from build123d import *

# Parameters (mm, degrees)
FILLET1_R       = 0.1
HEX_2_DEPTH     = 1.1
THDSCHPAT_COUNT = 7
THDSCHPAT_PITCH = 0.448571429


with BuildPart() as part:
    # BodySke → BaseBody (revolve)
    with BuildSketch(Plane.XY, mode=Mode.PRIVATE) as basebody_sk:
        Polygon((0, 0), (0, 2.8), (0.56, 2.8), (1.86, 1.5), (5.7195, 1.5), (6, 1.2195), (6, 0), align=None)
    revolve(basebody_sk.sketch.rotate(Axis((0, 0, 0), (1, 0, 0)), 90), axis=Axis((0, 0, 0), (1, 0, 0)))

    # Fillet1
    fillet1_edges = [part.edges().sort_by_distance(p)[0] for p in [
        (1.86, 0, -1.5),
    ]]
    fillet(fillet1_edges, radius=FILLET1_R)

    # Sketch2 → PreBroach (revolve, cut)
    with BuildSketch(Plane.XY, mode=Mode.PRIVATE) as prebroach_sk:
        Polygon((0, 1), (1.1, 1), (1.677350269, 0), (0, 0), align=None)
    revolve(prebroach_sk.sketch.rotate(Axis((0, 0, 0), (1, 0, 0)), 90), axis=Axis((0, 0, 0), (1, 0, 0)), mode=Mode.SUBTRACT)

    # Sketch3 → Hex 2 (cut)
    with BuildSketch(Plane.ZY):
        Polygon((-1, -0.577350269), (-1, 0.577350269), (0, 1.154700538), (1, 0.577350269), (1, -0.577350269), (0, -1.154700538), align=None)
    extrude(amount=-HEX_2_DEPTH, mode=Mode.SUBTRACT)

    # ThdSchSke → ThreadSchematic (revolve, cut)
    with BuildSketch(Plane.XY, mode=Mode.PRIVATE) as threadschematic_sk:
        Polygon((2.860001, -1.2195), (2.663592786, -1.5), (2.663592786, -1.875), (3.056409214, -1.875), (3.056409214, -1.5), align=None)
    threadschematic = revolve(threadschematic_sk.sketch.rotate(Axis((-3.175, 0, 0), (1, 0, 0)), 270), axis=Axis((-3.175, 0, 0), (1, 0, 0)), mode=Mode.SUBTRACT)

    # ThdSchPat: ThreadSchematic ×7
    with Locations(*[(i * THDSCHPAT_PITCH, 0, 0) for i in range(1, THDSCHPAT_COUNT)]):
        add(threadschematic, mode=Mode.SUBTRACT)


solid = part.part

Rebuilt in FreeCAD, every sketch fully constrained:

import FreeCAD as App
import Part
import Sketcher
from FreeCAD import Vector
Q = App.Units.Quantity


def edges_at(feature, points):
    """Names of the edges that pass closest to the given points."""
    edges = feature.Shape.Edges
    near = lambda p: min(range(len(edges)), key=lambda i: edges[i].distToShape(Part.Vertex(*p))[0])
    return sorted({f"Edge{near(p) + 1}" for p in points})

doc = App.newDocument("Part")
body = doc.addObject("PartDesign::Body", "Body")

# Sketch on XY plane
sketch1 = body.newObject("Sketcher::SketchObject", "Sketch")
sketch1.AttachmentSupport = (doc.getObject("XY_Plane"), [""])
sketch1.MapMode = "FlatFace"
sketch1.addGeometry(Part.LineSegment(Vector(0, 2.8, 0), Vector(0, 0, 0)), False)
sketch1.addGeometry(Part.LineSegment(Vector(0, 0, 0), Vector(6, 0, 0)), False)
sketch1.addGeometry(Part.LineSegment(Vector(6, 0, 0), Vector(6, 1.22, 0)), False)
sketch1.addGeometry(Part.LineSegment(Vector(6, 1.22, 0), Vector(5.72, 1.5, 0)), False)
sketch1.addGeometry(Part.LineSegment(Vector(5.72, 1.5, 0), Vector(1.86, 1.5, 0)), False)
sketch1.addGeometry(Part.LineSegment(Vector(1.86, 1.5, 0), Vector(0.56, 2.8, 0)), False)
sketch1.addGeometry(Part.LineSegment(Vector(0.56, 2.8, 0), Vector(0, 2.8, 0)), False)
sketch1.addConstraint(Sketcher.Constraint("Coincident", 0, 2, 1, 1))
sketch1.addConstraint(Sketcher.Constraint("Coincident", 1, 2, 2, 1))
sketch1.addConstraint(Sketcher.Constraint("Coincident", 2, 2, 3, 1))
sketch1.addConstraint(Sketcher.Constraint("Coincident", 3, 2, 4, 1))
sketch1.addConstraint(Sketcher.Constraint("Coincident", 4, 2, 5, 1))
sketch1.addConstraint(Sketcher.Constraint("Coincident", 5, 2, 6, 1))
sketch1.addConstraint(Sketcher.Constraint("Coincident", 6, 2, 0, 1))
sketch1.addConstraint(Sketcher.Constraint("Vertical", 0))
sketch1.addConstraint(Sketcher.Constraint("Horizontal", 1))
sketch1.addConstraint(Sketcher.Constraint("Vertical", 2))
sketch1.addConstraint(Sketcher.Constraint("Horizontal", 4))
sketch1.addConstraint(Sketcher.Constraint("Horizontal", 6))
sketch1.addConstraint(Sketcher.Constraint("Coincident", 0, 2, -1, 1))
sketch1.addConstraint(Sketcher.Constraint("Parallel", 3, 5))
sketch1.addConstraint(Sketcher.Constraint("DistanceX", 1, 1, 1, 2, 6.0))
sketch1.addConstraint(Sketcher.Constraint("Angle", 3, Q("135 deg")))
sketch1.addConstraint(Sketcher.Constraint("DistanceY", 0, 2, 0, 1, 2.8))
sketch1.addConstraint(Sketcher.Constraint("DistanceX", 6, 2, 6, 1, 0.56))
sketch1.addConstraint(Sketcher.Constraint("DistanceY", -1, 1, 3, 2, 1.5))
sketch1.addConstraint(Sketcher.Constraint("DistanceX", 4, 2, 4, 1, 3.8595))
revolution = body.newObject("PartDesign::Revolution", "Revolution")
revolution.Profile = sketch1
revolution.ReferenceAxis = (sketch1, ["H_Axis"])
revolution.Angle = 360
doc.recompute()

fillet = body.newObject("PartDesign::Fillet", "Fillet")
fillet.Base = (revolution, edges_at(revolution, [(1.86, 0, -1.5)]))
fillet.Radius = 0.1

# Sketch on XY plane
sketch2 = body.newObject("Sketcher::SketchObject", "Sketch001")
sketch2.AttachmentSupport = (doc.getObject("XY_Plane"), [""])
sketch2.MapMode = "FlatFace"
sketch2.addGeometry(Part.LineSegment(Vector(1.1, 1, 0), Vector(0, 1, 0)), False)
sketch2.addGeometry(Part.LineSegment(Vector(0, 1, 0), Vector(0, 0, 0)), False)
sketch2.addGeometry(Part.LineSegment(Vector(0, 0, 0), Vector(1.7, 0, 0)), False)
sketch2.addGeometry(Part.LineSegment(Vector(1.7, 0, 0), Vector(1.1, 1, 0)), False)
sketch2.addConstraint(Sketcher.Constraint("Coincident", 0, 2, 1, 1))
sketch2.addConstraint(Sketcher.Constraint("Coincident", 1, 2, 2, 1))
sketch2.addConstraint(Sketcher.Constraint("Coincident", 2, 2, 3, 1))
sketch2.addConstraint(Sketcher.Constraint("Coincident", 3, 2, 0, 1))
sketch2.addConstraint(Sketcher.Constraint("Horizontal", 0))
sketch2.addConstraint(Sketcher.Constraint("Vertical", 1))
sketch2.addConstraint(Sketcher.Constraint("Horizontal", 2))
sketch2.addConstraint(Sketcher.Constraint("Coincident", 1, 2, -1, 1))
sketch2.addConstraint(Sketcher.Constraint("DistanceY", 1, 2, 1, 1, 1.0))
sketch2.addConstraint(Sketcher.Constraint("Angle", 3, Q("120 deg")))
sketch2.addConstraint(Sketcher.Constraint("DistanceX", 0, 2, 0, 1, 1.1))
groove = body.newObject("PartDesign::Groove", "Groove")
groove.Profile = sketch2
groove.ReferenceAxis = (sketch2, ["H_Axis"])
groove.Angle = 360

# Sketch on YZ plane
sketch3 = body.newObject("Sketcher::SketchObject", "Sketch002")
sketch3.AttachmentSupport = (doc.getObject("YZ_Plane"), [""])
sketch3.MapMode = "FlatFace"
sketch3.addGeometry(Part.LineSegment(Vector(0.6, -1, 0), Vector(-0.6, -1, 0)), False)
sketch3.addGeometry(Part.LineSegment(Vector(-0.6, -1, 0), Vector(-1.2, 0, 0)), False)
sketch3.addGeometry(Part.LineSegment(Vector(-1.2, 0, 0), Vector(-0.6, 1, 0)), False)
sketch3.addGeometry(Part.LineSegment(Vector(-0.6, 1, 0), Vector(0.6, 1, 0)), False)
sketch3.addGeometry(Part.LineSegment(Vector(0.6, 1, 0), Vector(1.2, 0, 0)), False)
sketch3.addGeometry(Part.LineSegment(Vector(1.2, 0, 0), Vector(0.6, -1, 0)), False)
sketch3.addConstraint(Sketcher.Constraint("Coincident", 0, 2, 1, 1))
sketch3.addConstraint(Sketcher.Constraint("Coincident", 1, 2, 2, 1))
sketch3.addConstraint(Sketcher.Constraint("Coincident", 2, 2, 3, 1))
sketch3.addConstraint(Sketcher.Constraint("Coincident", 3, 2, 4, 1))
sketch3.addConstraint(Sketcher.Constraint("Coincident", 4, 2, 5, 1))
sketch3.addConstraint(Sketcher.Constraint("Coincident", 5, 2, 0, 1))
sketch3.addConstraint(Sketcher.Constraint("Horizontal", 0))
sketch3.addConstraint(Sketcher.Constraint("Horizontal", 3))
sketch3.addConstraint(Sketcher.Constraint("Symmetric", 0, 2, 3, 2, -1, 1))
sketch3.addConstraint(Sketcher.Constraint("Symmetric", 1, 2, 4, 2, -1, 1))
sketch3.addConstraint(Sketcher.Constraint("PointOnObject", 1, 2, -1))
sketch3.addConstraint(Sketcher.Constraint("Parallel", 2, 5))
sketch3.addConstraint(Sketcher.Constraint("Vertical", 0, 2, 2, 2))
sketch3.addConstraint(Sketcher.Constraint("Angle", 1, Q("120 deg")))
sketch3.addConstraint(Sketcher.Constraint("DistanceY", 0, 2, -1, 1, 1.0))
sketch3.addConstraint(Sketcher.Constraint("DistanceX", 0, 2, 0, 1, 1.154701))
pocket1 = body.newObject("PartDesign::Pocket", "Pocket")
pocket1.Profile = sketch3
pocket1.Length = 1.1
pocket1.Reversed = True

# Sketch on XY plane
sketch4 = body.newObject("Sketcher::SketchObject", "Sketch003")
sketch4.AttachmentSupport = (doc.getObject("XY_Plane"), [""])
sketch4.MapMode = "FlatFace"
sketch4.addGeometry(Part.LineSegment(Vector(2.86, -1.22, 0), Vector(2.66, -1.5, 0)), False)
sketch4.addGeometry(Part.LineSegment(Vector(2.66, -1.5, 0), Vector(2.66, -1.88, 0)), False)
sketch4.addGeometry(Part.LineSegment(Vector(2.66, -1.88, 0), Vector(3.06, -1.88, 0)), False)
sketch4.addGeometry(Part.LineSegment(Vector(3.06, -1.88, 0), Vector(3.06, -1.5, 0)), False)
sketch4.addGeometry(Part.LineSegment(Vector(3.06, -1.5, 0), Vector(2.86, -1.22, 0)), False)
sketch4.addConstraint(Sketcher.Constraint("Coincident", 0, 2, 1, 1))
sketch4.addConstraint(Sketcher.Constraint("Coincident", 1, 2, 2, 1))
sketch4.addConstraint(Sketcher.Constraint("Coincident", 2, 2, 3, 1))
sketch4.addConstraint(Sketcher.Constraint("Coincident", 3, 2, 4, 1))
sketch4.addConstraint(Sketcher.Constraint("Coincident", 4, 2, 0, 1))
sketch4.addConstraint(Sketcher.Constraint("Vertical", 1))
sketch4.addConstraint(Sketcher.Constraint("Horizontal", 2))
sketch4.addConstraint(Sketcher.Constraint("Vertical", 3))
sketch4.addConstraint(Sketcher.Constraint("Horizontal", 0, 2, 3, 2))
sketch4.addConstraint(Sketcher.Constraint("Equal", 0, 4))
sketch4.addConstraint(Sketcher.Constraint("Angle", 0, Q("-125 deg")))
sketch4.addConstraint(Sketcher.Constraint("DistanceY", 0, 2, -1, 1, 1.5))
sketch4.addConstraint(Sketcher.Constraint("DistanceY", 1, 2, 1, 1, 0.375))
sketch4.addConstraint(Sketcher.Constraint("DistanceX", -1, 1, 4, 2, 2.860001))
sketch4.addConstraint(Sketcher.Constraint("DistanceY", 4, 2, -1, 1, 1.2195))
groove2 = body.newObject("PartDesign::Groove", "Groove001")
groove2.Profile = sketch4
groove2.ReferenceAxis = (sketch4, ["H_Axis"])
groove2.Angle = 360
doc.recompute()

linearpattern = body.newObject("PartDesign::LinearPattern", "LinearPattern")
linearpattern.Originals = [groove2]
linearpattern.Direction = (doc.getObject("X_Axis"), [""])
linearpattern.Mode = "offset"
linearpattern.Offset = 0.448571
linearpattern.Occurrences = 7
body.Tip = linearpattern

doc.recompute()
